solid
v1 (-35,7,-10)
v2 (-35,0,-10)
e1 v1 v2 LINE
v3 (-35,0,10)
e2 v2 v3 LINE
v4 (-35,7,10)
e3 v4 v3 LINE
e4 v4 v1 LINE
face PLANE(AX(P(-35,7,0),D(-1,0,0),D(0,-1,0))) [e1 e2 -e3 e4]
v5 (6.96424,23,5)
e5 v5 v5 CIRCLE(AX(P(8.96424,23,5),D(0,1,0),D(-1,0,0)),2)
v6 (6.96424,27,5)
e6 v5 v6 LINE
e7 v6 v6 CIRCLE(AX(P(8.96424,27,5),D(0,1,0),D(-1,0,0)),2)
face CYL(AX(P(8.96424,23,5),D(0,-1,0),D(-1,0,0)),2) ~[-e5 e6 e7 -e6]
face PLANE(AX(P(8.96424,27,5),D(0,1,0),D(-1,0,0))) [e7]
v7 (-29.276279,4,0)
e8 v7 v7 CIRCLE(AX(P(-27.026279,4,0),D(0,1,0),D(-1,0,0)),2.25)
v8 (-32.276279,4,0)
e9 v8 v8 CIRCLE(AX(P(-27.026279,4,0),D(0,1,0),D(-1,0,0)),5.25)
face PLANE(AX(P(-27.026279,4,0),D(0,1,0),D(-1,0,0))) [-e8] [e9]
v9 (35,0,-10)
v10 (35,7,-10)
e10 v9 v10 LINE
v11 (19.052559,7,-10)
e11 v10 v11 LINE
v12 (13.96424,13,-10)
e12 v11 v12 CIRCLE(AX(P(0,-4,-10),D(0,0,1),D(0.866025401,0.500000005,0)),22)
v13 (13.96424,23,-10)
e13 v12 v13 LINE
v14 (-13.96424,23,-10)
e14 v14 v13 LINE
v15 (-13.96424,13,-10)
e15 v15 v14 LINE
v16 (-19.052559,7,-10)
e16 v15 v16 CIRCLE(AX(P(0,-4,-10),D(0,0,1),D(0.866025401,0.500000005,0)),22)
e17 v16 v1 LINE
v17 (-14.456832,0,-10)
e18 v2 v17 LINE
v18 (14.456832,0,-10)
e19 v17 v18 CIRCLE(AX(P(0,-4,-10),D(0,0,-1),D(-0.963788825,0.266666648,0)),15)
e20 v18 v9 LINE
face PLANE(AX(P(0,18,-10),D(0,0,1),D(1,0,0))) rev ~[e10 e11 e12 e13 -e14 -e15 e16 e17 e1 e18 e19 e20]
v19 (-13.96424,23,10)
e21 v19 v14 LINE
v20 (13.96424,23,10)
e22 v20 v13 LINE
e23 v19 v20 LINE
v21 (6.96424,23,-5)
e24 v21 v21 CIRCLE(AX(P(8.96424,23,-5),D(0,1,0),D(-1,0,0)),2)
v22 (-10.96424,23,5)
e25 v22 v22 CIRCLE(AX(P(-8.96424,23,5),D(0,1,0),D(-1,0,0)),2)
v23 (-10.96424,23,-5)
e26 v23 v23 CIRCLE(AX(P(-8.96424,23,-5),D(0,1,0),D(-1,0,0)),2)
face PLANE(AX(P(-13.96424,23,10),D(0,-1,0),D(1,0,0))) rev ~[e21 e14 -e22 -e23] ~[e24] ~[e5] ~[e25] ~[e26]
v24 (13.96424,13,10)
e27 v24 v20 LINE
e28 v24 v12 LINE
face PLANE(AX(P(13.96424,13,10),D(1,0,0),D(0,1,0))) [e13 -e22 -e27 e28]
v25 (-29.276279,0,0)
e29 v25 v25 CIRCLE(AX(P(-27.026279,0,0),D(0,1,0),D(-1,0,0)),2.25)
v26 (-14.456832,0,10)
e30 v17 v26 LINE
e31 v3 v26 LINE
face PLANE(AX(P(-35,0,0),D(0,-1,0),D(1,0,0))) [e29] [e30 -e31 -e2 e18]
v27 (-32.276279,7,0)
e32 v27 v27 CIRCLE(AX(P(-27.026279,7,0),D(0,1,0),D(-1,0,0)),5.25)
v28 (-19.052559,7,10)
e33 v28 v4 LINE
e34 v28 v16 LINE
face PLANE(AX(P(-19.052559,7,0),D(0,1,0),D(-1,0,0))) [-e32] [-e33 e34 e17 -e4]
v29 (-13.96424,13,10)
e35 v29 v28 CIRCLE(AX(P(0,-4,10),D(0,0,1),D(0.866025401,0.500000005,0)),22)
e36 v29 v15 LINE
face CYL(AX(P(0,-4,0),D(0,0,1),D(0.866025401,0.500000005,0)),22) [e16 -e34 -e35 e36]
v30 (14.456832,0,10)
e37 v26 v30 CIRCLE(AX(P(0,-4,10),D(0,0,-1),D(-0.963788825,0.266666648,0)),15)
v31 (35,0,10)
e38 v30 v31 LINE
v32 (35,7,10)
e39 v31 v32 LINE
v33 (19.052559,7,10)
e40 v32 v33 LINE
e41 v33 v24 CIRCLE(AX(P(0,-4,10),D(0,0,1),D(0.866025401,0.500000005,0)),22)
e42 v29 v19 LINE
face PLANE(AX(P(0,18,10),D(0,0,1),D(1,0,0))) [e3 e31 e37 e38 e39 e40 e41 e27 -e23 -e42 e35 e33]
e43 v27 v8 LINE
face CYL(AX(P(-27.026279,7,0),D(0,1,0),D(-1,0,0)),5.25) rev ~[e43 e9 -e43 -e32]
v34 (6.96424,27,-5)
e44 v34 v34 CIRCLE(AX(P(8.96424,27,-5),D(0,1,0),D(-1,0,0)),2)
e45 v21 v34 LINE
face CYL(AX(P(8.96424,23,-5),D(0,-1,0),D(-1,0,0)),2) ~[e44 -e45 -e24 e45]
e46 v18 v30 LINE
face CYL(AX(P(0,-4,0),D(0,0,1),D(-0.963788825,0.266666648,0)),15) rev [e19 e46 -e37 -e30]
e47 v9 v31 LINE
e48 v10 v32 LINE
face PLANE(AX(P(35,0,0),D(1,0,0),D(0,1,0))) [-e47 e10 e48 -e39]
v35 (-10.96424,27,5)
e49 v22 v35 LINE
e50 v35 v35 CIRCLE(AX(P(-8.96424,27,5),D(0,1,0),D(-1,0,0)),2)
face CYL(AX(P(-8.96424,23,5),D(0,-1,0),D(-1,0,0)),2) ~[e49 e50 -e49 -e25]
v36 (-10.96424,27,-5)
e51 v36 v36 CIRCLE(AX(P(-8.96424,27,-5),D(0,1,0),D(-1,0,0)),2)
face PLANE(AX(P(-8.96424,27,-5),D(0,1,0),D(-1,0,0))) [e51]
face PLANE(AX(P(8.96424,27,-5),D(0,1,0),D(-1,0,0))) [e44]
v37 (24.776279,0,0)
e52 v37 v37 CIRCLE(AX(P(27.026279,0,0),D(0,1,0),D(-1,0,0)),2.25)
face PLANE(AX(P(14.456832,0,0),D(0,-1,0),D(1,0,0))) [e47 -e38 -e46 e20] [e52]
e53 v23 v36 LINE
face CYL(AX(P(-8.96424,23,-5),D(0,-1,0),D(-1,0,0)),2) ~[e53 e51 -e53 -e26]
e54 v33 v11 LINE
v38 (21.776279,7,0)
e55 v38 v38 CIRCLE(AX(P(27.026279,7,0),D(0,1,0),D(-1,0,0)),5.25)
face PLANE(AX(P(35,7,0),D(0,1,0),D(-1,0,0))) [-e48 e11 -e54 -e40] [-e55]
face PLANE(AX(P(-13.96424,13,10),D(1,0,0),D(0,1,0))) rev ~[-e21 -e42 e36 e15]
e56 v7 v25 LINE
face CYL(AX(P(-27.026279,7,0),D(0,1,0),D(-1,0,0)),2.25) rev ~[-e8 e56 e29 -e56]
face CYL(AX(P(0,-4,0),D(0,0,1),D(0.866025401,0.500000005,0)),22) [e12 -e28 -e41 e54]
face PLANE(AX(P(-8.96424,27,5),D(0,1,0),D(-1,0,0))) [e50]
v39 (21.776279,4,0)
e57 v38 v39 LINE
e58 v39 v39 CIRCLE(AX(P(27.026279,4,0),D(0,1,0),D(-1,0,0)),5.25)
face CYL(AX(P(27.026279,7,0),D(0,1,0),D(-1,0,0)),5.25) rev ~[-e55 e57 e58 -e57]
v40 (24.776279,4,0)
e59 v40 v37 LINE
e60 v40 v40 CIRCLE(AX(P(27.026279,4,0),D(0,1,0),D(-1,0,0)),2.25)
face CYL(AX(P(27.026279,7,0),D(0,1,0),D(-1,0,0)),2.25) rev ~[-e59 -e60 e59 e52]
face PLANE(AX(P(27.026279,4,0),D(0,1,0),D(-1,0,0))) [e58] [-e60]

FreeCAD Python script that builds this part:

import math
import FreeCAD as App
import Part
import Sketcher

V = App.Vector
Q = App.Units.Quantity

doc = App.newDocument("Part")
body = doc.addObject("PartDesign::Body", "Body")

# Sketch on XY plane
sketch1 = body.newObject("Sketcher::SketchObject", "Sketch")
sketch1.AttachmentSupport = (doc.getObject("XY_Plane"), [""])
sketch1.MapMode = "FlatFace"
sketch1.addGeometry([
    Part.LineSegment(V(-35, 7, 0), V(-35, 0, 0)),  # 0
    Part.LineSegment(V(-35, 0, 0), V(-14, 0, 0)),  # 1
    Part.ArcOfCircle(Part.Circle(V(0, -4, 0), V(0, 0, 1), 15), math.radians(15), math.radians(165)),  # 2
    Part.LineSegment(V(14, 0, 0), V(35, 0, 0)),  # 3
    Part.LineSegment(V(35, 0, 0), V(35, 7, 0)),  # 4
    Part.LineSegment(V(35, 7, 0), V(19, 7, 0)),  # 5
    Part.ArcOfCircle(Part.Circle(V(0, -4, 0), V(0, 0, 1), 22), math.radians(30), math.radians(150)),  # 6
    Part.LineSegment(V(-19, 7, 0), V(-35, 7, 0)),  # 7
], False)
sketch1.addConstraint([
    Sketcher.Constraint("Coincident", 0, 2, 1, 1),
    Sketcher.Constraint("Coincident", 1, 2, 2, 2),
    Sketcher.Constraint("Coincident", 2, 1, 3, 1),
    Sketcher.Constraint("Coincident", 3, 2, 4, 1),
    Sketcher.Constraint("Coincident", 4, 2, 5, 1),
    Sketcher.Constraint("Coincident", 5, 2, 6, 1),
    Sketcher.Constraint("Coincident", 6, 2, 7, 1),
    Sketcher.Constraint("Coincident", 7, 2, 0, 1),
    Sketcher.Constraint("Vertical", 0),
    Sketcher.Constraint("Horizontal", 1),
    Sketcher.Constraint("Horizontal", 3),
    Sketcher.Constraint("Vertical", 4),
    Sketcher.Constraint("Horizontal", 5),
    Sketcher.Constraint("Horizontal", 7),
    Sketcher.Constraint("Coincident", 6, 3, 2, 3),
    Sketcher.Constraint("Symmetric", 1, 2, 2, 1, -1, 1),
    Sketcher.Constraint("Symmetric", 0, 2, 3, 2, -2),
    Sketcher.Constraint("Horizontal", 5, 2, 6, 2),
    Sketcher.Constraint("Radius", 2, Q("15 mm")),
    Sketcher.Constraint("Radius", 6, Q("22 mm")),
    Sketcher.Constraint("DistanceY", 0, 2, 0, 1, Q("7 mm")),
    Sketcher.Constraint("DistanceY", 2, 3, -1, 1, Q("4 mm")),
    Sketcher.Constraint("DistanceX", 0, 2, -1, 1, Q("35 mm")),
])
pad1 = body.newObject("PartDesign::Pad", "Pad")
pad1.Profile = sketch1
pad1.Length = 20
pad1.Midplane = True

# Sketch on XZ plane
sketch2 = body.newObject("Sketcher::SketchObject", "Sketch001")
sketch2.AttachmentSupport = (doc.getObject("XZ_Plane"), [""])
sketch2.MapMode = "FlatFace"
sketch2.AttachmentOffset = App.Placement(V(0, 0, -7), App.Rotation())
sketch2.addGeometry([
    Part.Circle(V(27, 0, 0), V(0, 0, 1), 2.2),
    Part.Circle(V(-27, 0, 0), V(0, 0, 1), 2.2),
], False)
sketch2.addConstraint([
    Sketcher.Constraint("Equal", 0, 1),
    Sketcher.Constraint("Symmetric", 0, 3, 1, 3, -1, 1),
    Sketcher.Constraint("PointOnObject", 0, 3, -1),
    Sketcher.Constraint("Diameter", 0, Q("4.5 mm")),
    Sketcher.Constraint("DistanceX", -1, 1, 0, 3, Q("27.026279 mm")),
])
pocket1 = body.newObject("PartDesign::Pocket", "Pocket")
pocket1.Profile = sketch2
pocket1.Length = 25
pocket1.Reversed = True

# Sketch on XZ plane
sketch3 = body.newObject("Sketcher::SketchObject", "Sketch002")
sketch3.AttachmentSupport = (doc.getObject("XZ_Plane"), [""])
sketch3.MapMode = "FlatFace"
sketch3.AttachmentOffset = App.Placement(V(0, 0, -7), App.Rotation())
sketch3.addGeometry([
    Part.Circle(V(-27, 0, 0), V(0, 0, 1), 5.2),
    Part.Circle(V(-27, 0, 0), V(0, 0, 1), 2.2),
    Part.Circle(V(27, 0, 0), V(0, 0, 1), 5.2),
], False)
sketch3.addConstraint([
    Sketcher.Constraint("Coincident", 1, 3, 0, 3),
    Sketcher.Constraint("Equal", 0, 2),
    Sketcher.Constraint("Symmetric", 0, 3, 2, 3, -1, 1),
    Sketcher.Constraint("PointOnObject", 0, 3, -1),
    Sketcher.Constraint("Diameter", 0, Q("10.5 mm")),
    Sketcher.Constraint("Diameter", 1, Q("4.5 mm")),
    Sketcher.Constraint("DistanceX", 0, 3, -1, 1, Q("27.026279 mm")),
])
pocket2 = body.newObject("PartDesign::Pocket", "Pocket001")
pocket2.Profile = sketch3
pocket2.Length = 3
pocket2.Reversed = True

# Sketch on XY plane
sketch4 = body.newObject("Sketcher::SketchObject", "Sketch003")
sketch4.AttachmentSupport = (doc.getObject("XY_Plane"), [""])
sketch4.MapMode = "FlatFace"
sketch4.AttachmentOffset = App.Placement(V(0, 0, 10), App.Rotation())
sketch4.addGeometry([
    Part.LineSegment(V(-14, 23, 0), V(-14, 13, 0)),
    Part.LineSegment(V(-14, 13, 0), V(14, 13, 0)),
    Part.LineSegment(V(14, 13, 0), V(14, 23, 0)),
    Part.LineSegment(V(14, 23, 0), V(-14, 23, 0)),
], False)
sketch4.addConstraint([
    Sketcher.Constraint("Coincident", 0, 2, 1, 1),
    Sketcher.Constraint("Coincident", 1, 2, 2, 1),
    Sketcher.Constraint("Coincident", 2, 2, 3, 1),
    Sketcher.Constraint("Coincident", 3, 2, 0, 1),
    Sketcher.Constraint("Vertical", 0),
    Sketcher.Constraint("Horizontal", 1),
    Sketcher.Constraint("Vertical", 2),
    Sketcher.Constraint("Horizontal", 3),
    Sketcher.Constraint("DistanceY", 0, 2, 0, 1, Q("10 mm")),
    Sketcher.Constraint("DistanceY", -1, 1, 0, 2, Q("13 mm")),
    Sketcher.Constraint("DistanceX", 1, 1, 1, 2, Q("27.92848 mm")),
    Sketcher.Constraint("DistanceX", 0, 2, -1, 1, Q("13.96424 mm")),
])
pad2 = body.newObject("PartDesign::Pad", "Pad001")
pad2.Profile = sketch4
pad2.Length = 20
pad2.Reversed = True

# Sketch on XZ plane
sketch5 = body.newObject("Sketcher::SketchObject", "Sketch004")
sketch5.AttachmentSupport = (doc.getObject("XZ_Plane"), [""])
sketch5.MapMode = "FlatFace"
sketch5.AttachmentOffset = App.Placement(V(0, 0, -23), App.Rotation())
sketch5.addGeometry([
    Part.Circle(V(-9, -5, 0), V(0, 0, 1), 2),
    Part.Circle(V(9, -5, 0), V(0, 0, 1), 2),
    Part.Circle(V(-9, 5, 0), V(0, 0, 1), 2),
    Part.Circle(V(9, 5, 0), V(0, 0, 1), 2),
], False)
sketch5.addConstraint([
    Sketcher.Constraint("Equal", 0, 1),
    Sketcher.Constraint("Equal", 1, 2),
    Sketcher.Constraint("Equal", 2, 3),
    Sketcher.Constraint("Symmetric", 1, 3, 2, 3, -1, 1),
    Sketcher.Constraint("Symmetric", 0, 3, 3, 3, -1, 1),
    Sketcher.Constraint("Symmetric", 0, 3, 1, 3, -2),
    Sketcher.Constraint("Diameter", 0, Q("4 mm")),
    Sketcher.Constraint("DistanceY", 0, 3, -1, 1, Q("5 mm")),
    Sketcher.Constraint("DistanceX", 0, 3, -1, 1, Q("8.96424 mm")),
])
pad3 = body.newObject("PartDesign::Pad", "Pad002")
pad3.Profile = sketch5
pad3.Length = 4
pad3.Reversed = True

doc.recompute()
